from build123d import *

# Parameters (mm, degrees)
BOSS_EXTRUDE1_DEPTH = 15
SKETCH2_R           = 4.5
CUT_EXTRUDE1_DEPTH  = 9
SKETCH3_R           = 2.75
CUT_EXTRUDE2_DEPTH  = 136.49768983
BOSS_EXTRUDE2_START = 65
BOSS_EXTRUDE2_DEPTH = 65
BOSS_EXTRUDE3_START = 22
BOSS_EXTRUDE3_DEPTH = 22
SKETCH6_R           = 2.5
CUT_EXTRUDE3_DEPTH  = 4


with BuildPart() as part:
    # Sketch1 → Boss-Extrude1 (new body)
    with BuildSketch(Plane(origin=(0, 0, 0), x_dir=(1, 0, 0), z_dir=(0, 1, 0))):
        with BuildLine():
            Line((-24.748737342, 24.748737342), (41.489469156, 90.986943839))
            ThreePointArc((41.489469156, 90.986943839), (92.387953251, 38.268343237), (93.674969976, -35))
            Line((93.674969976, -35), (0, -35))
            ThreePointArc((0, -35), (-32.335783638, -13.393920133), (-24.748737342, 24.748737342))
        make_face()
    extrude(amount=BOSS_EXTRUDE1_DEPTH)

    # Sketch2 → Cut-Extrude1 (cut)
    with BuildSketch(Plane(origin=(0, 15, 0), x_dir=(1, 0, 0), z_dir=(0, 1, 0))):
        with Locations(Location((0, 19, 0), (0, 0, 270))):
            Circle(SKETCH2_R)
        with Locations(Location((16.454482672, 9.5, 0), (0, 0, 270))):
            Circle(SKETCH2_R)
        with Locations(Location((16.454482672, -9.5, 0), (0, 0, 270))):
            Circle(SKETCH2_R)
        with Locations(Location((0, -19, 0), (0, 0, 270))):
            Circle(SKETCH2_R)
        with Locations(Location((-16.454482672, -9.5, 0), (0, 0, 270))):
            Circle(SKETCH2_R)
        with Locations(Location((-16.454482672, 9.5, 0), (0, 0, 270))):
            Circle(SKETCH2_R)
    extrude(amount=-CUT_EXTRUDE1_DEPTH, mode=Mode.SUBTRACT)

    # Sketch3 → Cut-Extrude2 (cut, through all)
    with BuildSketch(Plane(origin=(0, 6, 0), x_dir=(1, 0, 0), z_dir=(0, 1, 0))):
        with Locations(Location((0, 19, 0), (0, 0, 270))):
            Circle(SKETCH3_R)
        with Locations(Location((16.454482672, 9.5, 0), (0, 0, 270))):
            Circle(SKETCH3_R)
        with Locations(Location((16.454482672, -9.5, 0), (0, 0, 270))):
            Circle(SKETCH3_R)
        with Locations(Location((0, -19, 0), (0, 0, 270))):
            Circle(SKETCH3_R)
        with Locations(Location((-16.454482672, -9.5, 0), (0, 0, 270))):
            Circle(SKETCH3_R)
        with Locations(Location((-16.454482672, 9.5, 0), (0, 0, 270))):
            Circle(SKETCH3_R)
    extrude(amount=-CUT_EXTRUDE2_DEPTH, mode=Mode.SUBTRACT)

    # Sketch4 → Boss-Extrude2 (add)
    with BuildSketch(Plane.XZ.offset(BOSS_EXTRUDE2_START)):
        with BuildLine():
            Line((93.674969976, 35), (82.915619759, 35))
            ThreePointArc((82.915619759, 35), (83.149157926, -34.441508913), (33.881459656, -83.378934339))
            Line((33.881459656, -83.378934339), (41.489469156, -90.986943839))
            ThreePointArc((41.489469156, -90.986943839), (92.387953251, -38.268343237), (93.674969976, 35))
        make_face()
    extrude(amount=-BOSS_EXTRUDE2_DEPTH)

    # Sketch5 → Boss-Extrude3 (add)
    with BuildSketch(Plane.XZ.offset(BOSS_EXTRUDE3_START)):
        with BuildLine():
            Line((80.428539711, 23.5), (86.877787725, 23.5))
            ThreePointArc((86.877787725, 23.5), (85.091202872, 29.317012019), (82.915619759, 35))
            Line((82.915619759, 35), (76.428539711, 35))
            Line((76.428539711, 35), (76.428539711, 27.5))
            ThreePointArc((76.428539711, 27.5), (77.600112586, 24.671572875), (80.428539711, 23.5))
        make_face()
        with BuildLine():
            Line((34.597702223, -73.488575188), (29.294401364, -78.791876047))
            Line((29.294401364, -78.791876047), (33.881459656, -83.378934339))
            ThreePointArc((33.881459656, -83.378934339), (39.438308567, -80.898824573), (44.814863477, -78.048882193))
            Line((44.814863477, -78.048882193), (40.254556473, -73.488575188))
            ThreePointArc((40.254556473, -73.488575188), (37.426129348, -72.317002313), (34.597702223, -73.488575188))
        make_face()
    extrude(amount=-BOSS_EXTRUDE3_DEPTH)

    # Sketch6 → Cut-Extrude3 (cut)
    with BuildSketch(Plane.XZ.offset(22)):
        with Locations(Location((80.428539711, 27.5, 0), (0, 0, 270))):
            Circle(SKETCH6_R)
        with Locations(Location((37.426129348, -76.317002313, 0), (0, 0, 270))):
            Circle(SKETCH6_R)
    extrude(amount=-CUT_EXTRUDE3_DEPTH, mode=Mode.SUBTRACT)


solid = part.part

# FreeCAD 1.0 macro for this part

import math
import FreeCAD as App
import Part
import Sketcher
from FreeCAD import Vector
Q = App.Units.Quantity

doc = App.newDocument("Part")
body = doc.addObject("PartDesign::Body", "Body")

# Sketch on XZ plane
sketch1 = doc.addObject("Sketcher::SketchObject", "Sketch")
body.addObject(sketch1)
sketch1.AttachmentSupport = (doc.XZ_Plane, [""])
sketch1.MapMode = "FlatFace"
sketch1.addGeometry([
    Part.LineSegment(Vector(41, -91, 0), Vector(-25, -25, 0)),
    Part.ArcOfCircle(Part.Circle(Vector(0, 0, 0), Vector(0, 0, 1), 35), math.radians(90), math.radians(225)),
    Part.LineSegment(Vector(0, 35, 0), Vector(94, 35, 0)),
    Part.ArcOfCircle(Part.Circle(Vector(0, 0, 0), Vector(0, 0, 1), 100), math.radians(-65), math.radians(20)),
], False)
sketch1.addConstraint([
    Sketcher.Constraint("Tangent", 0, 2, 1, 2),
    Sketcher.Constraint("Tangent", 1, 1, 2, 1),
    Sketcher.Constraint("Coincident", 2, 2, 3, 2),
    Sketcher.Constraint("Coincident", 3, 1, 0, 1),
    Sketcher.Constraint("Horizontal", 2),
    Sketcher.Constraint("Coincident", 1, 3, -1, 1),
    Sketcher.Constraint("Coincident", 3, 3, -1, 1),
    Sketcher.Constraint("Radius", 1, 35.0),
    Sketcher.Constraint("Radius", 3, 100.0),
    Sketcher.Constraint("Angle", 0, Q("135 deg")),
])
pad1 = doc.addObject("PartDesign::Pad", "Pad")
body.addObject(pad1)
pad1.Profile = sketch1
pad1.Length = 15
pad1.Reversed = True

# Sketch on XZ plane
sketch2 = doc.addObject("Sketcher::SketchObject", "Sketch001")
body.addObject(sketch2)
sketch2.AttachmentSupport = (doc.XZ_Plane, [""])
sketch2.MapMode = "FlatFace"
sketch2.AttachmentOffset = App.Placement(Vector(0, 0, -15), App.Rotation())
sketch2.addGeometry([
    Part.Circle(Vector(0, -19, 0), Vector(0, 0, 1), 4.5),  # 0
    Part.Circle(Vector(16.5, -9.5, 0), Vector(0, 0, 1), 4.5),  # 1
    Part.Circle(Vector(16.5, 9.5, 0), Vector(0, 0, 1), 4.5),  # 2
    Part.Circle(Vector(0, 19, 0), Vector(0, 0, 1), 4.5),  # 3
    Part.Circle(Vector(-16.5, 9.5, 0), Vector(0, 0, 1), 4.5),  # 4
    Part.Circle(Vector(-16.5, -9.5, 0), Vector(0, 0, 1), 4.5),  # 5
], False)
sketch2.addConstraint([
    Sketcher.Constraint("Equal", 0, 1),
    Sketcher.Constraint("Equal", 1, 2),
    Sketcher.Constraint("Equal", 2, 3),
    Sketcher.Constraint("Equal", 3, 4),
    Sketcher.Constraint("Equal", 4, 5),
    Sketcher.Constraint("Symmetric", 0, 3, 3, 3, -1, 1),
    Sketcher.Constraint("Symmetric", 1, 3, 4, 3, -1, 1),
    Sketcher.Constraint("Symmetric", 2, 3, 5, 3, -1, 1),
    Sketcher.Constraint("Symmetric", 2, 3, 4, 3, -2),
    Sketcher.Constraint("PointOnObject", 0, 3, -2),
    Sketcher.Constraint("Diameter", 0, 9.0),
    Sketcher.Constraint("DistanceY", 0, 3, -1, 1, 19.0),
    Sketcher.Constraint("DistanceY", 1, 3, 2, 3, 19.0),
    Sketcher.Constraint("DistanceX", -1, 1, 1, 3, 16.454483),
])
pocket1 = doc.addObject("PartDesign::Pocket", "Pocket")
body.addObject(pocket1)
pocket1.Profile = sketch2
pocket1.Length = 9
pocket1.Reversed = True

# Sketch on XZ plane
sketch3 = doc.addObject("Sketcher::SketchObject", "Sketch002")
body.addObject(sketch3)
sketch3.AttachmentSupport = (doc.XZ_Plane, [""])
sketch3.MapMode = "FlatFace"
sketch3.AttachmentOffset = App.Placement(Vector(0, 0, -6), App.Rotation())
sketch3.addGeometry([
    Part.Circle(Vector(0, -19, 0), Vector(0, 0, 1), 2.8),  # 0
    Part.Circle(Vector(16.5, -9.5, 0), Vector(0, 0, 1), 2.8),  # 1
    Part.Circle(Vector(16.5, 9.5, 0), Vector(0, 0, 1), 2.8),  # 2
    Part.Circle(Vector(0, 19, 0), Vector(0, 0, 1), 2.8),  # 3
    Part.Circle(Vector(-16.5, 9.5, 0), Vector(0, 0, 1), 2.8),  # 4
    Part.Circle(Vector(-16.5, -9.5, 0), Vector(0, 0, 1), 2.8),  # 5
], False)
sketch3.addConstraint([
    Sketcher.Constraint("Equal", 0, 1),
    Sketcher.Constraint("Equal", 1, 2),
    Sketcher.Constraint("Equal", 2, 3),
    Sketcher.Constraint("Equal", 3, 4),
    Sketcher.Constraint("Equal", 4, 5),
    Sketcher.Constraint("Symmetric", 0, 3, 3, 3, -1, 1),
    Sketcher.Constraint("Symmetric", 1, 3, 4, 3, -1, 1),
    Sketcher.Constraint("Symmetric", 2, 3, 5, 3, -1, 1),
    Sketcher.Constraint("Symmetric", 2, 3, 4, 3, -2),
    Sketcher.Constraint("PointOnObject", 0, 3, -2),
    Sketcher.Constraint("Diameter", 0, 5.5),
    Sketcher.Constraint("DistanceY", 0, 3, -1, 1, 19.0),
    Sketcher.Constraint("DistanceY", 1, 3, 2, 3, 19.0),
    Sketcher.Constraint("DistanceX", -1, 1, 1, 3, 16.454483),
])
pocket2 = doc.addObject("PartDesign::Pocket", "Pocket001")
body.addObject(pocket2)
pocket2.Profile = sketch3
pocket2.Type = "ThroughAll"
pocket2.Reversed = True

# Sketch on XZ plane
sketch4 = doc.addObject("Sketcher::SketchObject", "Sketch003")
body.addObject(sketch4)
sketch4.AttachmentSupport = (doc.XZ_Plane, [""])
sketch4.MapMode = "FlatFace"
sketch4.AttachmentOffset = App.Placement(Vector(0, 0, 65), App.Rotation())
sketch4.addGeometry([
    Part.LineSegment(Vector(94, 35, 0), Vector(83, 35, 0)),
    Part.ArcOfCircle(Part.Circle(Vector(0, 0, 0), Vector(0, 0, 1), 90), math.radians(-68), math.radians(23)),
    Part.LineSegment(Vector(34, -83, 0), Vector(41, -91, 0)),
    Part.ArcOfCircle(Part.Circle(Vector(0, 0, 0), Vector(0, 0, 1), 100), math.radians(-65), math.radians(20)),
], False)
sketch4.addConstraint([
    Sketcher.Constraint("Coincident", 0, 2, 1, 2),
    Sketcher.Constraint("Coincident", 1, 1, 2, 1),
    Sketcher.Constraint("Coincident", 2, 2, 3, 1),
    Sketcher.Constraint("Coincident", 3, 2, 0, 1),
    Sketcher.Constraint("Horizontal", 0),
    Sketcher.Constraint("Coincident", 1, 3, -1, 1),
    Sketcher.Constraint("Coincident", 3, 3, -1, 1),
    Sketcher.Constraint("Radius", 1, 90.0),
    Sketcher.Constraint("Radius", 3, 100.0),
    Sketcher.Constraint("Angle", 2, Q("-45 deg")),
    Sketcher.Constraint("DistanceY", -1, 1, 0, 2, 35.0),
    Sketcher.Constraint("DistanceX", 2, 2, 3, 2, 52.185501),
])
pad2 = doc.addObject("PartDesign::Pad", "Pad001")
body.addObject(pad2)
pad2.Profile = sketch4
pad2.Length = 65
pad2.Reversed = True

# Sketch on XZ plane
sketch5 = doc.addObject("Sketcher::SketchObject", "Sketch004")
body.addObject(sketch5)
sketch5.AttachmentSupport = (doc.XZ_Plane, [""])
sketch5.MapMode = "FlatFace"
sketch5.AttachmentOffset = App.Placement(Vector(0, 0, 22), App.Rotation())
sketch5.addGeometry([
    Part.LineSegment(Vector(80.4, 23.5, 0), Vector(86.9, 23.5, 0)),  # 0
    Part.ArcOfCircle(Part.Circle(Vector(0, 0, 0), Vector(0, 0, 1), 90), math.radians(15.14), math.radians(22.89)),  # 1
    Part.LineSegment(Vector(82.9, 35, 0), Vector(76.4, 35, 0)),  # 2
    Part.LineSegment(Vector(76.4, 35, 0), Vector(76.4, 27.5, 0)),  # 3
    Part.ArcOfCircle(Part.Circle(Vector(80.4, 27.5, 0), Vector(0, 0, 1), 4), math.radians(180), math.radians(270)),  # 4
    Part.LineSegment(Vector(34.6, -73.5, 0), Vector(29.3, -78.8, 0)),  # 5
    Part.LineSegment(Vector(29.3, -78.8, 0), Vector(33.9, -83.4, 0)),  # 6
    Part.ArcOfCircle(Part.Circle(Vector(0, 0, 0), Vector(0, 0, 1), 90), math.radians(-67.89), math.radians(-60.14)),  # 7
    Part.LineSegment(Vector(44.8, -78, 0), Vector(40.3, -73.5, 0)),  # 8
    Part.ArcOfCircle(Part.Circle(Vector(37.4, -76.3, 0), Vector(0, 0, 1), 4), math.radians(45), math.radians(135)),  # 9
], False)
sketch5.addConstraint([
    Sketcher.Constraint("Coincident", 0, 2, 1, 1),
    Sketcher.Constraint("Coincident", 1, 2, 2, 1),
    Sketcher.Constraint("Coincident", 2, 2, 3, 1),
    Sketcher.Constraint("Tangent", 3, 2, 4, 1),
    Sketcher.Constraint("Tangent", 4, 2, 0, 1),
    Sketcher.Constraint("Coincident", 5, 2, 6, 1),
    Sketcher.Constraint("Coincident", 6, 2, 7, 1),
    Sketcher.Constraint("Coincident", 7, 2, 8, 1),
    Sketcher.Constraint("Tangent", 8, 2, 9, 1),
    Sketcher.Constraint("Tangent", 9, 2, 5, 1),
    Sketcher.Constraint("Horizontal", 0),
    Sketcher.Constraint("Horizontal", 2),
    Sketcher.Constraint("Vertical", 3),
    Sketcher.Constraint("Coincident", 1, 3, -1, 1),
    Sketcher.Constraint("Coincident", 7, 3, -1, 1),
    Sketcher.Constraint("Equal", 1, 7),
    Sketcher.Constraint("Equal", 4, 9),
    Sketcher.Constraint("Perpendicular", 5, 6),
    Sketcher.Constraint("Parallel", 6, 8),
    Sketcher.Constraint("Horizontal", 8, 2, 9, 2),
    Sketcher.Constraint("Radius", 1, 90.0),
    Sketcher.Constraint("Radius", 4, 4.0),
    Sketcher.Constraint("DistanceY", 3, 2, 3, 1, 7.5),
    Sketcher.Constraint("DistanceY", -1, 1, 1, 2, 35.0),
    Sketcher.Constraint("Distance", 5, 7.5),
    Sketcher.Constraint("DistanceX", 0, 1, 0, 2, 6.449248),
    Sketcher.Constraint("DistanceX", -1, 1, 5, 2, 29.294401),
    Sketcher.Constraint("Distance", 6, 6.48708),
])
pad3 = doc.addObject("PartDesign::Pad", "Pad002")
body.addObject(pad3)
pad3.Profile = sketch5
pad3.Length = 22
pad3.Reversed = True

# Sketch on XZ plane
sketch6 = doc.addObject("Sketcher::SketchObject", "Sketch005")
body.addObject(sketch6)
sketch6.AttachmentSupport = (doc.XZ_Plane, [""])
sketch6.MapMode = "FlatFace"
sketch6.AttachmentOffset = App.Placement(Vector(0, 0, 22), App.Rotation())
sketch6.addGeometry([
    Part.Circle(Vector(80.4, 27.5, 0), Vector(0, 0, 1), 2.5),
    Part.Circle(Vector(37.4, -76.3, 0), Vector(0, 0, 1), 2.5),
], False)
sketch6.addConstraint([
    Sketcher.Constraint("Equal", 0, 1),
    Sketcher.Constraint("Diameter", 0, 5.0),
    Sketcher.Constraint("DistanceY", -1, 1, 0, 3, 27.5),
    Sketcher.Constraint("DistanceX", -1, 1, 0, 3, 80.42854),
    Sketcher.Constraint("DistanceX", -1, 1, 1, 3, 37.426129),
    Sketcher.Constraint("DistanceY", 1, 3, -1, 1, 76.317002),
])
pocket3 = doc.addObject("PartDesign::Pocket", "Pocket002")
body.addObject(pocket3)
pocket3.Profile = sketch6
pocket3.Length = 4

doc.recompute()
